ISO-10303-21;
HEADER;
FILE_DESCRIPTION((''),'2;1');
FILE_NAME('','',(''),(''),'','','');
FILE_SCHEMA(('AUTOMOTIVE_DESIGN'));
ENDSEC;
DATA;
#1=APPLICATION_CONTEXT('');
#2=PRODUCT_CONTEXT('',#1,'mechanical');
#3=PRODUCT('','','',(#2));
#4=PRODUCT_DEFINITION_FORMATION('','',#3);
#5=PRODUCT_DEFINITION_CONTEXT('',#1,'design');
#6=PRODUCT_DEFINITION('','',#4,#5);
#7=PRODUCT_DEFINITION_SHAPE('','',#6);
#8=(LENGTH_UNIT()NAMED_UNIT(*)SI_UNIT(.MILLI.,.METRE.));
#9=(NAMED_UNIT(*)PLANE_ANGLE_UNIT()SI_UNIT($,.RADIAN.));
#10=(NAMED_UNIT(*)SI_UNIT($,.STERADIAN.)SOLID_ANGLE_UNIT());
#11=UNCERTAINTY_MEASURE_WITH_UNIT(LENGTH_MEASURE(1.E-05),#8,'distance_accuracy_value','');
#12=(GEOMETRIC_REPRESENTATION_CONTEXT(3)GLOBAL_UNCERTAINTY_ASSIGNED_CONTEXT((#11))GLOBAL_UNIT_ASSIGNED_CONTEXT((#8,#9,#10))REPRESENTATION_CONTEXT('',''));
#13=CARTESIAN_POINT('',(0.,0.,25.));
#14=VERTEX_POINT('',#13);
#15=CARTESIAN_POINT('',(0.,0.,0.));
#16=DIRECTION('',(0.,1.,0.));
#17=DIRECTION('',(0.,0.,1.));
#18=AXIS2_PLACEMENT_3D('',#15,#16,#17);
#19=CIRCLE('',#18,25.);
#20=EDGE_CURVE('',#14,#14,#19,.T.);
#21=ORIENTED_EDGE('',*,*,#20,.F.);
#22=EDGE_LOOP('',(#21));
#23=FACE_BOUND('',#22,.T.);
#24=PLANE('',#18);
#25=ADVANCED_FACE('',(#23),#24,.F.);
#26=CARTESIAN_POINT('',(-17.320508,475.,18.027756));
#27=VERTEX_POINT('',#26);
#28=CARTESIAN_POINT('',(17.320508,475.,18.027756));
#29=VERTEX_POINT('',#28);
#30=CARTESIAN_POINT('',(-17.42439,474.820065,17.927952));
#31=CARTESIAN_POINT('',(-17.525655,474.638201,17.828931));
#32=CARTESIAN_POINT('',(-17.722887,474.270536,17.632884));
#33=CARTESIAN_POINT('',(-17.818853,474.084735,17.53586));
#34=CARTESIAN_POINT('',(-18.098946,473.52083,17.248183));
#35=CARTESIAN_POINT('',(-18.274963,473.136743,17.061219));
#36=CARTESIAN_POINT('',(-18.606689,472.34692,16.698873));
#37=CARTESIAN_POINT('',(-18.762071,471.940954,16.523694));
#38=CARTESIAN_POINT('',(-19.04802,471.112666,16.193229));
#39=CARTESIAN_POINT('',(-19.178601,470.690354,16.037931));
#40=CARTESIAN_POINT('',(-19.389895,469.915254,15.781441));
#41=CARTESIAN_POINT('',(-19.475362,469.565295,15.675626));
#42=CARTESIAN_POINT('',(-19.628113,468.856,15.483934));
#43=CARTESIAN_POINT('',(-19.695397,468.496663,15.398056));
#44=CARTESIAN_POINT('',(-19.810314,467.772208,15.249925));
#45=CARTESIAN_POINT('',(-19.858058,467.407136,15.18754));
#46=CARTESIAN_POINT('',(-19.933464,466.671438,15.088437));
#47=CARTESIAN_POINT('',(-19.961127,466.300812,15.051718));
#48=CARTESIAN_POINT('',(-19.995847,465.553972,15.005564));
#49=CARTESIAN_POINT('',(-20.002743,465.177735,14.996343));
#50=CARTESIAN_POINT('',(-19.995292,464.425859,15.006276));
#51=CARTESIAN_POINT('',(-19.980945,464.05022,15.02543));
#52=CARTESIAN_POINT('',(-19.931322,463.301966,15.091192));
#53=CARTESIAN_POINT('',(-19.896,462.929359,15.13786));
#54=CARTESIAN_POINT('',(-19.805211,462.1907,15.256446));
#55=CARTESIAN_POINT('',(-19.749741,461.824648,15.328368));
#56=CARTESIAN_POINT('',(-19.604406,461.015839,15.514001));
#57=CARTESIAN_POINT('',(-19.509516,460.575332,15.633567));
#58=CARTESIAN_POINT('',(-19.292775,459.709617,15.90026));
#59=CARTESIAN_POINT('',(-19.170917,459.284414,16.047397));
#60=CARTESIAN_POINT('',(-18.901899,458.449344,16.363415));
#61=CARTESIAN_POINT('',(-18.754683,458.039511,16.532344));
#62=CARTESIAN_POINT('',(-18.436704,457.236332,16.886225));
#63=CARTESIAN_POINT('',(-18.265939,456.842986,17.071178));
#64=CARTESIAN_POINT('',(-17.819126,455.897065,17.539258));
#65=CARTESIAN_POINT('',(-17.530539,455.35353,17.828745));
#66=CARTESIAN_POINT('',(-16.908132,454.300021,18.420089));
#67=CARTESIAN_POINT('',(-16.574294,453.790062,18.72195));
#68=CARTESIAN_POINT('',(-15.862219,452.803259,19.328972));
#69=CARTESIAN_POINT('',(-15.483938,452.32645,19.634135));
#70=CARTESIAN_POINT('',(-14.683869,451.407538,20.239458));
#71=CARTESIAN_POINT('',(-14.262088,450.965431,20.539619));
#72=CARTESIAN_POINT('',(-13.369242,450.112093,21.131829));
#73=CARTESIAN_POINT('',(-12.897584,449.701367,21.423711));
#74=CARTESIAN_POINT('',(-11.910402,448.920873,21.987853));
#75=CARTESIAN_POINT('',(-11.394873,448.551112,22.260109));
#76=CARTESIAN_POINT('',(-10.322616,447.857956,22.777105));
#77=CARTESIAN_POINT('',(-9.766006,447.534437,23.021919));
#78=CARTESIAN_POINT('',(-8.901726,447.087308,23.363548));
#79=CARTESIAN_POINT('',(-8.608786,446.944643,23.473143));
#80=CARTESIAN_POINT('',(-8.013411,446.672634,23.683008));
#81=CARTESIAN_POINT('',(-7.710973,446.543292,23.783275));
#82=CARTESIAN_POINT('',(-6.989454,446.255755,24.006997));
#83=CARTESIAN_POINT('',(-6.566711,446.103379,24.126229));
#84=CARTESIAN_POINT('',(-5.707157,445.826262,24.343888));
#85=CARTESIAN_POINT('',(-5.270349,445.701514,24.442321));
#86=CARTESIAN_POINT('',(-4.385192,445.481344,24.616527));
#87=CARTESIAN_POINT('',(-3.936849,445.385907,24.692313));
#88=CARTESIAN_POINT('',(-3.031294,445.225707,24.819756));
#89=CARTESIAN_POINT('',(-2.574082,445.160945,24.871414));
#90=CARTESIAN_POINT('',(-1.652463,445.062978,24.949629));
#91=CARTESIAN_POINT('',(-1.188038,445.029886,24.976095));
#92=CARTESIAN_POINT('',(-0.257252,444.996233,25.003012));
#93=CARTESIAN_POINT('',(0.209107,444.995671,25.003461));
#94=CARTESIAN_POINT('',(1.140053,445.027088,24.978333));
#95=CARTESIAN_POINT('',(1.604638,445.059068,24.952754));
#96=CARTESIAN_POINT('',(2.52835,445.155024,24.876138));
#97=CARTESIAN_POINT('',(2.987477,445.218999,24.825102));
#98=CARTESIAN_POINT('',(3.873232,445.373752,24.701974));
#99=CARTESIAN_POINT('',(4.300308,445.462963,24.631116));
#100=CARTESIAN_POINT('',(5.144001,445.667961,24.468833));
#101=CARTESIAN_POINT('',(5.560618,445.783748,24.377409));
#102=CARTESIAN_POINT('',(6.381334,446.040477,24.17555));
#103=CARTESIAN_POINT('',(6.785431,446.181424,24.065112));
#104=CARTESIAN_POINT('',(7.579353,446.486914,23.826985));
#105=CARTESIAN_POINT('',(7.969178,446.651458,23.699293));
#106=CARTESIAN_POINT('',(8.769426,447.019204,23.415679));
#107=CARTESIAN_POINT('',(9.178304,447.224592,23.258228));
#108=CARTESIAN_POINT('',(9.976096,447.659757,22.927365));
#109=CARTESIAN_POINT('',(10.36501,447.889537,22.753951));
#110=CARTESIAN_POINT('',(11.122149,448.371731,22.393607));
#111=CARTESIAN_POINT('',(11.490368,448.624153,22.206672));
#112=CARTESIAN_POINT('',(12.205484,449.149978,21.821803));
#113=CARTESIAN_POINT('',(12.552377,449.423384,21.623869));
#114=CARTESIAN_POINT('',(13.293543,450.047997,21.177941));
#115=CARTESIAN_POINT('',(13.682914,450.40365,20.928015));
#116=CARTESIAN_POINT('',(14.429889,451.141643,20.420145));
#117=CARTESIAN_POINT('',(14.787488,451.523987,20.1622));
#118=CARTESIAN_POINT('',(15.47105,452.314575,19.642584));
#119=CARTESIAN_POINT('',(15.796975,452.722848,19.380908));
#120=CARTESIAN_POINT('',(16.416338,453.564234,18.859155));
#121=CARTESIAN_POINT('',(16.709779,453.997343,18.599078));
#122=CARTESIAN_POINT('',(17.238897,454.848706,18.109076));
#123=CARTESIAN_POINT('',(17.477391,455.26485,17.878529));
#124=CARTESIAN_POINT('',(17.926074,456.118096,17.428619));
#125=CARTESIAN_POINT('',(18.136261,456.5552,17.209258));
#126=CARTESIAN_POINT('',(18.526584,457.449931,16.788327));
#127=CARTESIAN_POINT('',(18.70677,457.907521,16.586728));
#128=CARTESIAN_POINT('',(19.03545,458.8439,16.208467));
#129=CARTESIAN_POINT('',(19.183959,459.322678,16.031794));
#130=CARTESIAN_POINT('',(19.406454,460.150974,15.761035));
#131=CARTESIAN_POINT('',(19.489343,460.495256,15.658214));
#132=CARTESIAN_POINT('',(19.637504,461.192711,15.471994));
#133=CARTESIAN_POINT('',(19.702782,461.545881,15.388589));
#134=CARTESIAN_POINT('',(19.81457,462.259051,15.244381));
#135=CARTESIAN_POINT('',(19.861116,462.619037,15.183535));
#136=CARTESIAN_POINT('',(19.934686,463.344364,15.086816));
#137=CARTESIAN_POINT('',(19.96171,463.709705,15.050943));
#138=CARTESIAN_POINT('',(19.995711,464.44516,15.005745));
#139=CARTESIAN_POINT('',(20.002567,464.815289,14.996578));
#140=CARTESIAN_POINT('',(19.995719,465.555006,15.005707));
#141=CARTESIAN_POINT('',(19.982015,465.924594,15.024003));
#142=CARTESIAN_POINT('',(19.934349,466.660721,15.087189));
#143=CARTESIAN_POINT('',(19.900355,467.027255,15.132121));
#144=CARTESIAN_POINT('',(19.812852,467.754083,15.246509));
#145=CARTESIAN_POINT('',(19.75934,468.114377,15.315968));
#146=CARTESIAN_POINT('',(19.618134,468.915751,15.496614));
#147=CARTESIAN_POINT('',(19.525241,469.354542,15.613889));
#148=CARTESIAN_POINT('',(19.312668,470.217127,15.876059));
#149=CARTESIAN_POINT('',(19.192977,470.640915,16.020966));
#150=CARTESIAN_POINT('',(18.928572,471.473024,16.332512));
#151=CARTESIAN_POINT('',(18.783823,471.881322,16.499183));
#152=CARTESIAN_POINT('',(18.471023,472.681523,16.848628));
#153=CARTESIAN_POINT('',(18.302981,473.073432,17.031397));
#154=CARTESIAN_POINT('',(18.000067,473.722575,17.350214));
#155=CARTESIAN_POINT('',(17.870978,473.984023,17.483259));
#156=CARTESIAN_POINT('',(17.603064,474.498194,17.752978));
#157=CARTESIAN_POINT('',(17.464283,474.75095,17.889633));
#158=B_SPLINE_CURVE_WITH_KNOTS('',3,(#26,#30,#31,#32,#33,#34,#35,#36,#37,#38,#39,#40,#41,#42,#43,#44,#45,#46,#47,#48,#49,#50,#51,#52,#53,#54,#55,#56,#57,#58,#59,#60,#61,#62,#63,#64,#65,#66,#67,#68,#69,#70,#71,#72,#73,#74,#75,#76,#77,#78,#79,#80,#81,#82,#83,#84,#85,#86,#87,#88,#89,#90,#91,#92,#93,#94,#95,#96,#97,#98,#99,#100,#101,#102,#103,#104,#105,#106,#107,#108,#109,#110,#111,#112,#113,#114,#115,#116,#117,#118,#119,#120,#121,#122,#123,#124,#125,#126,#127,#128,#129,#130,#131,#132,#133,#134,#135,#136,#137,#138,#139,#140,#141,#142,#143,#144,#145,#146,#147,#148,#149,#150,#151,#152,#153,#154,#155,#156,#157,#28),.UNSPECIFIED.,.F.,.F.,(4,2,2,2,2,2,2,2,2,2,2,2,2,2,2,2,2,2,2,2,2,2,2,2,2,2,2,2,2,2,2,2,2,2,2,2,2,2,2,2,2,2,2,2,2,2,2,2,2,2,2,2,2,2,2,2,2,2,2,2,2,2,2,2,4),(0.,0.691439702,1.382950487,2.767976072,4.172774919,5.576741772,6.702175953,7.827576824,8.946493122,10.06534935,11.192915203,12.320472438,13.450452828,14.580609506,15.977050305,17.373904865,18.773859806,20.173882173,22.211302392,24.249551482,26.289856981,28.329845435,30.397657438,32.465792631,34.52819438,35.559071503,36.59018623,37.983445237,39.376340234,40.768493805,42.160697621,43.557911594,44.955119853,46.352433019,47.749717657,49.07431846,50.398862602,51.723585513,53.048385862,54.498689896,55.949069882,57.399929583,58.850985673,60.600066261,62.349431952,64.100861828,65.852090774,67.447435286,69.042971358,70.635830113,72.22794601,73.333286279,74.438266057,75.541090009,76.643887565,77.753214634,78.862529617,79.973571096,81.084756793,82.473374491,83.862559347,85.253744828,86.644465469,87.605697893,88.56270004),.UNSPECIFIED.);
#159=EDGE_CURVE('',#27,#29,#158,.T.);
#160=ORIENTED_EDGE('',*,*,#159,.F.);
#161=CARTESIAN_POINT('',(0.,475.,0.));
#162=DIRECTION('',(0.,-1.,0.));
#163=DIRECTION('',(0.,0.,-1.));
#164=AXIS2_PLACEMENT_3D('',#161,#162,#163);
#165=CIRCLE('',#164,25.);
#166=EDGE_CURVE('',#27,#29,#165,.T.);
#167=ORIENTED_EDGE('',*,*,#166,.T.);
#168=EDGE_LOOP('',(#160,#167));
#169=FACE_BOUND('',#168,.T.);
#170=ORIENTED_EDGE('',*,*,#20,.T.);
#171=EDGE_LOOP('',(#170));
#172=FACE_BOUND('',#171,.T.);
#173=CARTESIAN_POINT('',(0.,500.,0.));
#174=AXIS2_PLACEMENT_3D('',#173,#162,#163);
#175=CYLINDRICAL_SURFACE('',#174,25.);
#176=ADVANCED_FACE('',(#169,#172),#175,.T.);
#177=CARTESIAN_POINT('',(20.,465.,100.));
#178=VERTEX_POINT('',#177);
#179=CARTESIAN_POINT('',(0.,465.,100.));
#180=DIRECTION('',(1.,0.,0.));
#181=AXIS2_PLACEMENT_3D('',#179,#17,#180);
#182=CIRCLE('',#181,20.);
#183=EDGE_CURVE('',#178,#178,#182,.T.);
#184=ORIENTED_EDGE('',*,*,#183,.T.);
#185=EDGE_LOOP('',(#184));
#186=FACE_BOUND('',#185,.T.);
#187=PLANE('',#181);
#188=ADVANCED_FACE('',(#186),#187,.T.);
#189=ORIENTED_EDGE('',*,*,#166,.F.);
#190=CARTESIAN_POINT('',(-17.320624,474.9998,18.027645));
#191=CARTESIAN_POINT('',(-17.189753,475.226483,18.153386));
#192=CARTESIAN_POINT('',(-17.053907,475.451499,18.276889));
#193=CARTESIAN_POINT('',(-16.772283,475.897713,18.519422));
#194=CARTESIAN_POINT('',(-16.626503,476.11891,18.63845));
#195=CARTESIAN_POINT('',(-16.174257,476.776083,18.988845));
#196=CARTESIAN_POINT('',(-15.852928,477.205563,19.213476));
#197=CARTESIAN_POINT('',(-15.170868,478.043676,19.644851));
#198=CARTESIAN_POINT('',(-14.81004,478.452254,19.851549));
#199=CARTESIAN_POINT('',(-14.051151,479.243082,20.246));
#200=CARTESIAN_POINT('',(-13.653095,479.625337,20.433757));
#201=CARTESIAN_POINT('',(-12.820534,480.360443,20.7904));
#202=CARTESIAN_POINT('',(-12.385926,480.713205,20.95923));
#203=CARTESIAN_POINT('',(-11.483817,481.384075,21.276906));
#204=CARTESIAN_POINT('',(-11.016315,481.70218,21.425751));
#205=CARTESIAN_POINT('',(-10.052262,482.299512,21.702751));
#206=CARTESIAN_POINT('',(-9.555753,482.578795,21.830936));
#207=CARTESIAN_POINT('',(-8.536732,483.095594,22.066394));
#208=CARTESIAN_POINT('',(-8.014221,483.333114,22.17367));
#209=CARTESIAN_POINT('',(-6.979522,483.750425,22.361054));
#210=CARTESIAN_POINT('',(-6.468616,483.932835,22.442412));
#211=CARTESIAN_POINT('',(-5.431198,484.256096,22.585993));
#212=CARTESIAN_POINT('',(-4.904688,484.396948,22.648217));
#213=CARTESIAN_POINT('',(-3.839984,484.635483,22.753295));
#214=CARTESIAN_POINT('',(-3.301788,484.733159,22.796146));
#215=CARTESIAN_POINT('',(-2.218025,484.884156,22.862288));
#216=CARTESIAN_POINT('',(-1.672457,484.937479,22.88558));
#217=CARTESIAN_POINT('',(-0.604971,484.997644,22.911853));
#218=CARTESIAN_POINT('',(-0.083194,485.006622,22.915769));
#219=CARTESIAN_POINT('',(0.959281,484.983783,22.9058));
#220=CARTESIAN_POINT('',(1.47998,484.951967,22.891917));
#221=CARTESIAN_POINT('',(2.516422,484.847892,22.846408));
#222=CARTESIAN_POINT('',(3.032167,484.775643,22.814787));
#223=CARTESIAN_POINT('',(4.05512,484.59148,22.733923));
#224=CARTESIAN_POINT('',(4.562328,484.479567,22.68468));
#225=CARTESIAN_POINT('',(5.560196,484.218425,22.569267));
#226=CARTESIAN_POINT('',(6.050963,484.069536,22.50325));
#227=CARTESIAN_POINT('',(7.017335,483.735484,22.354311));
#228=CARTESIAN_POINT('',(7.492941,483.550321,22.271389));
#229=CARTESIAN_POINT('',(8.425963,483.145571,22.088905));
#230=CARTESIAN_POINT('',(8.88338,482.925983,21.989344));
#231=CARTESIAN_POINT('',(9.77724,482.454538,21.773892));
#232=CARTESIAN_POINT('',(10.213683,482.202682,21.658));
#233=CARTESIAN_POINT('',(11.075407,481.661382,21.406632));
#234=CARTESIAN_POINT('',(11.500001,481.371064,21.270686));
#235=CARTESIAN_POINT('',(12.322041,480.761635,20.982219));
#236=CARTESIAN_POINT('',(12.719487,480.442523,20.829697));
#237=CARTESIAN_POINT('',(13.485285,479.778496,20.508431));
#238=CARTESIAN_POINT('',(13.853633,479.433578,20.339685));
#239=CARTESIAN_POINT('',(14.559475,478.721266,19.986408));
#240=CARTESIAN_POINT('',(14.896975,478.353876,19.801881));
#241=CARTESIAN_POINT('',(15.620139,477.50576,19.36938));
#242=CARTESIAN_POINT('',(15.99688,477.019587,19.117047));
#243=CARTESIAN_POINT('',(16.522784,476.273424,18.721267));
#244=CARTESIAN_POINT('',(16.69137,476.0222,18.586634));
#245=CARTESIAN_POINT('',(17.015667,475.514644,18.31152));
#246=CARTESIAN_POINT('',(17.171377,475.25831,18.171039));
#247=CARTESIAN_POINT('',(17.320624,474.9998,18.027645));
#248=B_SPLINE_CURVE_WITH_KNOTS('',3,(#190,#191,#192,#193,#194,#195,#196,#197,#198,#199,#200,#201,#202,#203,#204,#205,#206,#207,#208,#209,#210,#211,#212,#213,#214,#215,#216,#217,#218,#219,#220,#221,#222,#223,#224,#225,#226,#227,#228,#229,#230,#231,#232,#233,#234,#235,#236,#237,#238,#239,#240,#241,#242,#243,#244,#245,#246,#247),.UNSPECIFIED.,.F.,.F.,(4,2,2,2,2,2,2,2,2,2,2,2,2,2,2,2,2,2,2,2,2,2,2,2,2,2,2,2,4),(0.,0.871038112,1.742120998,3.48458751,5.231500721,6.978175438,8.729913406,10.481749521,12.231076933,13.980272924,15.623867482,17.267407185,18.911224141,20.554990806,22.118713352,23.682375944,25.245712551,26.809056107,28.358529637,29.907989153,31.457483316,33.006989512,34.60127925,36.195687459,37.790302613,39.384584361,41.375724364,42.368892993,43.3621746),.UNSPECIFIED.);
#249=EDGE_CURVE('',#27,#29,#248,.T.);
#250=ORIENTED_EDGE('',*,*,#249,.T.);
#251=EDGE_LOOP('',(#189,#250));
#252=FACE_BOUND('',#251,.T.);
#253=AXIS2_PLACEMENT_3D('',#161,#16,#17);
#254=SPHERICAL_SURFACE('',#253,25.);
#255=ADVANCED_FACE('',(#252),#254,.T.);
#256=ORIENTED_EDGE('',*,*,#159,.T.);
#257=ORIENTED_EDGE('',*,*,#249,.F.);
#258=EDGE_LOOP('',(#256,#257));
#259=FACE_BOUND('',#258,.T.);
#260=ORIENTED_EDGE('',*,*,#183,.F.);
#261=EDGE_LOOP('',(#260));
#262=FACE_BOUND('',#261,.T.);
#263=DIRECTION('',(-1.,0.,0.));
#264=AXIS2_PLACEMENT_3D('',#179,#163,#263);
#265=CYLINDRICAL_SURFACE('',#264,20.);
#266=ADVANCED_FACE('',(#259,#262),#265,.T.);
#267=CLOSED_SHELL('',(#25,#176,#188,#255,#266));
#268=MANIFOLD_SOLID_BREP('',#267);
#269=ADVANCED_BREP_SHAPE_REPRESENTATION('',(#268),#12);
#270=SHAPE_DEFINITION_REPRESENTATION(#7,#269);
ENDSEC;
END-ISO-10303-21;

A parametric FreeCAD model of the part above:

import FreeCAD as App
import Part
import Sketcher


def edges_at(feature, points):
    """Names of the edges that pass closest to the given points."""
    edges = feature.Shape.Edges
    near = lambda p: min(range(len(edges)), key=lambda i: edges[i].distToShape(Part.Vertex(*p))[0])
    return sorted({f"Edge{near(p) + 1}" for p in points})

doc = App.newDocument("Part")
body = doc.addObject("PartDesign::Body", "Body")

sketch1 = doc.addObject("Sketcher::SketchObject", "Sketch")
body.addObject(sketch1)
sketch1.AttachmentSupport = (doc.XZ_Plane, [""])
sketch1.MapMode = "FlatFace"
sketch1.addGeometry(Part.Circle(App.Vector(0, 0, 0), App.Vector(0, 0, 1), 25), False)
sketch1.addConstraint(Sketcher.Constraint("Coincident", 0, 3, -1, 1))
sketch1.addConstraint(Sketcher.Constraint("Diameter", 0, 50.0))
pad1 = doc.addObject("PartDesign::Pad", "Pad")
body.addObject(pad1)
pad1.Profile = sketch1
pad1.Length = 500
pad1.Reversed = True
doc.recompute()

fillet = doc.addObject("PartDesign::Fillet", "Fillet")
body.addObject(fillet)
fillet.Base = (pad1, edges_at(pad1, [(0, 500, -25)]))
fillet.Radius = 25

sketch2 = doc.addObject("Sketcher::SketchObject", "Sketch001")
body.addObject(sketch2)
sketch2.AttachmentSupport = (doc.XY_Plane, [""])
sketch2.MapMode = "FlatFace"
sketch2.addGeometry(Part.Circle(App.Vector(0, 465, 0), App.Vector(0, 0, 1), 20), False)
sketch2.addConstraint(Sketcher.Constraint("PointOnObject", 0, 3, -2))
sketch2.addConstraint(Sketcher.Constraint("Diameter", 0, 40.0))
sketch2.addConstraint(Sketcher.Constraint("DistanceY", -1, 1, 0, 3, 465.0))
pad2 = doc.addObject("PartDesign::Pad", "Pad001")
body.addObject(pad2)
pad2.Profile = sketch2
pad2.Length = 100

doc.recompute()
